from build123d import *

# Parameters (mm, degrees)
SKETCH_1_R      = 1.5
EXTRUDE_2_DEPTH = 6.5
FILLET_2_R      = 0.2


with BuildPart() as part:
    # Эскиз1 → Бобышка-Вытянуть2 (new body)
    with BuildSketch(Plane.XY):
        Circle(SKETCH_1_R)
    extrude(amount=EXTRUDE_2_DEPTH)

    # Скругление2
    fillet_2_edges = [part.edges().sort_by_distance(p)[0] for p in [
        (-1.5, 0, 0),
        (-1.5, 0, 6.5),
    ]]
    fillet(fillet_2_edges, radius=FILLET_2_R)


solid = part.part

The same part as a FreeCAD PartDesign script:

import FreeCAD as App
import Part
import Sketcher
from FreeCAD import Vector
Q = App.Units.Quantity


def edges_at(feature, points):
    """Names of the edges that pass closest to the given points."""
    edges = feature.Shape.Edges
    near = lambda p: min(range(len(edges)), key=lambda i: edges[i].distToShape(Part.Vertex(*p))[0])
    return sorted({f"Edge{near(p) + 1}" for p in points})

doc = App.newDocument("Part")
body = doc.addObject("PartDesign::Body", "Body")

# Sketch on XY plane
sketch1 = body.newObject("Sketcher::SketchObject", "Sketch")
sketch1.AttachmentSupport = (doc.getObject("XY_Plane"), [""])
sketch1.MapMode = "FlatFace"
sketch1.addGeometry(Part.Circle(Vector(0, 0, 0), Vector(0, 0, 1), 1.5), False)
sketch1.addConstraint([
    Sketcher.Constraint("Coincident", 0, 3, -1, 1),
    Sketcher.Constraint("Diameter", 0, Q("3 mm")),
])
pad1 = body.newObject("PartDesign::Pad", "Pad")
pad1.Profile = sketch1
pad1.Length = 6.5
doc.recompute()

fillet = body.newObject("PartDesign::Fillet", "Fillet")
fillet.Base = (pad1, edges_at(pad1, [(-1.5, 0, 0), (-1.5, 0, 6.5)]))
fillet.Radius = 0.2

doc.recompute()
